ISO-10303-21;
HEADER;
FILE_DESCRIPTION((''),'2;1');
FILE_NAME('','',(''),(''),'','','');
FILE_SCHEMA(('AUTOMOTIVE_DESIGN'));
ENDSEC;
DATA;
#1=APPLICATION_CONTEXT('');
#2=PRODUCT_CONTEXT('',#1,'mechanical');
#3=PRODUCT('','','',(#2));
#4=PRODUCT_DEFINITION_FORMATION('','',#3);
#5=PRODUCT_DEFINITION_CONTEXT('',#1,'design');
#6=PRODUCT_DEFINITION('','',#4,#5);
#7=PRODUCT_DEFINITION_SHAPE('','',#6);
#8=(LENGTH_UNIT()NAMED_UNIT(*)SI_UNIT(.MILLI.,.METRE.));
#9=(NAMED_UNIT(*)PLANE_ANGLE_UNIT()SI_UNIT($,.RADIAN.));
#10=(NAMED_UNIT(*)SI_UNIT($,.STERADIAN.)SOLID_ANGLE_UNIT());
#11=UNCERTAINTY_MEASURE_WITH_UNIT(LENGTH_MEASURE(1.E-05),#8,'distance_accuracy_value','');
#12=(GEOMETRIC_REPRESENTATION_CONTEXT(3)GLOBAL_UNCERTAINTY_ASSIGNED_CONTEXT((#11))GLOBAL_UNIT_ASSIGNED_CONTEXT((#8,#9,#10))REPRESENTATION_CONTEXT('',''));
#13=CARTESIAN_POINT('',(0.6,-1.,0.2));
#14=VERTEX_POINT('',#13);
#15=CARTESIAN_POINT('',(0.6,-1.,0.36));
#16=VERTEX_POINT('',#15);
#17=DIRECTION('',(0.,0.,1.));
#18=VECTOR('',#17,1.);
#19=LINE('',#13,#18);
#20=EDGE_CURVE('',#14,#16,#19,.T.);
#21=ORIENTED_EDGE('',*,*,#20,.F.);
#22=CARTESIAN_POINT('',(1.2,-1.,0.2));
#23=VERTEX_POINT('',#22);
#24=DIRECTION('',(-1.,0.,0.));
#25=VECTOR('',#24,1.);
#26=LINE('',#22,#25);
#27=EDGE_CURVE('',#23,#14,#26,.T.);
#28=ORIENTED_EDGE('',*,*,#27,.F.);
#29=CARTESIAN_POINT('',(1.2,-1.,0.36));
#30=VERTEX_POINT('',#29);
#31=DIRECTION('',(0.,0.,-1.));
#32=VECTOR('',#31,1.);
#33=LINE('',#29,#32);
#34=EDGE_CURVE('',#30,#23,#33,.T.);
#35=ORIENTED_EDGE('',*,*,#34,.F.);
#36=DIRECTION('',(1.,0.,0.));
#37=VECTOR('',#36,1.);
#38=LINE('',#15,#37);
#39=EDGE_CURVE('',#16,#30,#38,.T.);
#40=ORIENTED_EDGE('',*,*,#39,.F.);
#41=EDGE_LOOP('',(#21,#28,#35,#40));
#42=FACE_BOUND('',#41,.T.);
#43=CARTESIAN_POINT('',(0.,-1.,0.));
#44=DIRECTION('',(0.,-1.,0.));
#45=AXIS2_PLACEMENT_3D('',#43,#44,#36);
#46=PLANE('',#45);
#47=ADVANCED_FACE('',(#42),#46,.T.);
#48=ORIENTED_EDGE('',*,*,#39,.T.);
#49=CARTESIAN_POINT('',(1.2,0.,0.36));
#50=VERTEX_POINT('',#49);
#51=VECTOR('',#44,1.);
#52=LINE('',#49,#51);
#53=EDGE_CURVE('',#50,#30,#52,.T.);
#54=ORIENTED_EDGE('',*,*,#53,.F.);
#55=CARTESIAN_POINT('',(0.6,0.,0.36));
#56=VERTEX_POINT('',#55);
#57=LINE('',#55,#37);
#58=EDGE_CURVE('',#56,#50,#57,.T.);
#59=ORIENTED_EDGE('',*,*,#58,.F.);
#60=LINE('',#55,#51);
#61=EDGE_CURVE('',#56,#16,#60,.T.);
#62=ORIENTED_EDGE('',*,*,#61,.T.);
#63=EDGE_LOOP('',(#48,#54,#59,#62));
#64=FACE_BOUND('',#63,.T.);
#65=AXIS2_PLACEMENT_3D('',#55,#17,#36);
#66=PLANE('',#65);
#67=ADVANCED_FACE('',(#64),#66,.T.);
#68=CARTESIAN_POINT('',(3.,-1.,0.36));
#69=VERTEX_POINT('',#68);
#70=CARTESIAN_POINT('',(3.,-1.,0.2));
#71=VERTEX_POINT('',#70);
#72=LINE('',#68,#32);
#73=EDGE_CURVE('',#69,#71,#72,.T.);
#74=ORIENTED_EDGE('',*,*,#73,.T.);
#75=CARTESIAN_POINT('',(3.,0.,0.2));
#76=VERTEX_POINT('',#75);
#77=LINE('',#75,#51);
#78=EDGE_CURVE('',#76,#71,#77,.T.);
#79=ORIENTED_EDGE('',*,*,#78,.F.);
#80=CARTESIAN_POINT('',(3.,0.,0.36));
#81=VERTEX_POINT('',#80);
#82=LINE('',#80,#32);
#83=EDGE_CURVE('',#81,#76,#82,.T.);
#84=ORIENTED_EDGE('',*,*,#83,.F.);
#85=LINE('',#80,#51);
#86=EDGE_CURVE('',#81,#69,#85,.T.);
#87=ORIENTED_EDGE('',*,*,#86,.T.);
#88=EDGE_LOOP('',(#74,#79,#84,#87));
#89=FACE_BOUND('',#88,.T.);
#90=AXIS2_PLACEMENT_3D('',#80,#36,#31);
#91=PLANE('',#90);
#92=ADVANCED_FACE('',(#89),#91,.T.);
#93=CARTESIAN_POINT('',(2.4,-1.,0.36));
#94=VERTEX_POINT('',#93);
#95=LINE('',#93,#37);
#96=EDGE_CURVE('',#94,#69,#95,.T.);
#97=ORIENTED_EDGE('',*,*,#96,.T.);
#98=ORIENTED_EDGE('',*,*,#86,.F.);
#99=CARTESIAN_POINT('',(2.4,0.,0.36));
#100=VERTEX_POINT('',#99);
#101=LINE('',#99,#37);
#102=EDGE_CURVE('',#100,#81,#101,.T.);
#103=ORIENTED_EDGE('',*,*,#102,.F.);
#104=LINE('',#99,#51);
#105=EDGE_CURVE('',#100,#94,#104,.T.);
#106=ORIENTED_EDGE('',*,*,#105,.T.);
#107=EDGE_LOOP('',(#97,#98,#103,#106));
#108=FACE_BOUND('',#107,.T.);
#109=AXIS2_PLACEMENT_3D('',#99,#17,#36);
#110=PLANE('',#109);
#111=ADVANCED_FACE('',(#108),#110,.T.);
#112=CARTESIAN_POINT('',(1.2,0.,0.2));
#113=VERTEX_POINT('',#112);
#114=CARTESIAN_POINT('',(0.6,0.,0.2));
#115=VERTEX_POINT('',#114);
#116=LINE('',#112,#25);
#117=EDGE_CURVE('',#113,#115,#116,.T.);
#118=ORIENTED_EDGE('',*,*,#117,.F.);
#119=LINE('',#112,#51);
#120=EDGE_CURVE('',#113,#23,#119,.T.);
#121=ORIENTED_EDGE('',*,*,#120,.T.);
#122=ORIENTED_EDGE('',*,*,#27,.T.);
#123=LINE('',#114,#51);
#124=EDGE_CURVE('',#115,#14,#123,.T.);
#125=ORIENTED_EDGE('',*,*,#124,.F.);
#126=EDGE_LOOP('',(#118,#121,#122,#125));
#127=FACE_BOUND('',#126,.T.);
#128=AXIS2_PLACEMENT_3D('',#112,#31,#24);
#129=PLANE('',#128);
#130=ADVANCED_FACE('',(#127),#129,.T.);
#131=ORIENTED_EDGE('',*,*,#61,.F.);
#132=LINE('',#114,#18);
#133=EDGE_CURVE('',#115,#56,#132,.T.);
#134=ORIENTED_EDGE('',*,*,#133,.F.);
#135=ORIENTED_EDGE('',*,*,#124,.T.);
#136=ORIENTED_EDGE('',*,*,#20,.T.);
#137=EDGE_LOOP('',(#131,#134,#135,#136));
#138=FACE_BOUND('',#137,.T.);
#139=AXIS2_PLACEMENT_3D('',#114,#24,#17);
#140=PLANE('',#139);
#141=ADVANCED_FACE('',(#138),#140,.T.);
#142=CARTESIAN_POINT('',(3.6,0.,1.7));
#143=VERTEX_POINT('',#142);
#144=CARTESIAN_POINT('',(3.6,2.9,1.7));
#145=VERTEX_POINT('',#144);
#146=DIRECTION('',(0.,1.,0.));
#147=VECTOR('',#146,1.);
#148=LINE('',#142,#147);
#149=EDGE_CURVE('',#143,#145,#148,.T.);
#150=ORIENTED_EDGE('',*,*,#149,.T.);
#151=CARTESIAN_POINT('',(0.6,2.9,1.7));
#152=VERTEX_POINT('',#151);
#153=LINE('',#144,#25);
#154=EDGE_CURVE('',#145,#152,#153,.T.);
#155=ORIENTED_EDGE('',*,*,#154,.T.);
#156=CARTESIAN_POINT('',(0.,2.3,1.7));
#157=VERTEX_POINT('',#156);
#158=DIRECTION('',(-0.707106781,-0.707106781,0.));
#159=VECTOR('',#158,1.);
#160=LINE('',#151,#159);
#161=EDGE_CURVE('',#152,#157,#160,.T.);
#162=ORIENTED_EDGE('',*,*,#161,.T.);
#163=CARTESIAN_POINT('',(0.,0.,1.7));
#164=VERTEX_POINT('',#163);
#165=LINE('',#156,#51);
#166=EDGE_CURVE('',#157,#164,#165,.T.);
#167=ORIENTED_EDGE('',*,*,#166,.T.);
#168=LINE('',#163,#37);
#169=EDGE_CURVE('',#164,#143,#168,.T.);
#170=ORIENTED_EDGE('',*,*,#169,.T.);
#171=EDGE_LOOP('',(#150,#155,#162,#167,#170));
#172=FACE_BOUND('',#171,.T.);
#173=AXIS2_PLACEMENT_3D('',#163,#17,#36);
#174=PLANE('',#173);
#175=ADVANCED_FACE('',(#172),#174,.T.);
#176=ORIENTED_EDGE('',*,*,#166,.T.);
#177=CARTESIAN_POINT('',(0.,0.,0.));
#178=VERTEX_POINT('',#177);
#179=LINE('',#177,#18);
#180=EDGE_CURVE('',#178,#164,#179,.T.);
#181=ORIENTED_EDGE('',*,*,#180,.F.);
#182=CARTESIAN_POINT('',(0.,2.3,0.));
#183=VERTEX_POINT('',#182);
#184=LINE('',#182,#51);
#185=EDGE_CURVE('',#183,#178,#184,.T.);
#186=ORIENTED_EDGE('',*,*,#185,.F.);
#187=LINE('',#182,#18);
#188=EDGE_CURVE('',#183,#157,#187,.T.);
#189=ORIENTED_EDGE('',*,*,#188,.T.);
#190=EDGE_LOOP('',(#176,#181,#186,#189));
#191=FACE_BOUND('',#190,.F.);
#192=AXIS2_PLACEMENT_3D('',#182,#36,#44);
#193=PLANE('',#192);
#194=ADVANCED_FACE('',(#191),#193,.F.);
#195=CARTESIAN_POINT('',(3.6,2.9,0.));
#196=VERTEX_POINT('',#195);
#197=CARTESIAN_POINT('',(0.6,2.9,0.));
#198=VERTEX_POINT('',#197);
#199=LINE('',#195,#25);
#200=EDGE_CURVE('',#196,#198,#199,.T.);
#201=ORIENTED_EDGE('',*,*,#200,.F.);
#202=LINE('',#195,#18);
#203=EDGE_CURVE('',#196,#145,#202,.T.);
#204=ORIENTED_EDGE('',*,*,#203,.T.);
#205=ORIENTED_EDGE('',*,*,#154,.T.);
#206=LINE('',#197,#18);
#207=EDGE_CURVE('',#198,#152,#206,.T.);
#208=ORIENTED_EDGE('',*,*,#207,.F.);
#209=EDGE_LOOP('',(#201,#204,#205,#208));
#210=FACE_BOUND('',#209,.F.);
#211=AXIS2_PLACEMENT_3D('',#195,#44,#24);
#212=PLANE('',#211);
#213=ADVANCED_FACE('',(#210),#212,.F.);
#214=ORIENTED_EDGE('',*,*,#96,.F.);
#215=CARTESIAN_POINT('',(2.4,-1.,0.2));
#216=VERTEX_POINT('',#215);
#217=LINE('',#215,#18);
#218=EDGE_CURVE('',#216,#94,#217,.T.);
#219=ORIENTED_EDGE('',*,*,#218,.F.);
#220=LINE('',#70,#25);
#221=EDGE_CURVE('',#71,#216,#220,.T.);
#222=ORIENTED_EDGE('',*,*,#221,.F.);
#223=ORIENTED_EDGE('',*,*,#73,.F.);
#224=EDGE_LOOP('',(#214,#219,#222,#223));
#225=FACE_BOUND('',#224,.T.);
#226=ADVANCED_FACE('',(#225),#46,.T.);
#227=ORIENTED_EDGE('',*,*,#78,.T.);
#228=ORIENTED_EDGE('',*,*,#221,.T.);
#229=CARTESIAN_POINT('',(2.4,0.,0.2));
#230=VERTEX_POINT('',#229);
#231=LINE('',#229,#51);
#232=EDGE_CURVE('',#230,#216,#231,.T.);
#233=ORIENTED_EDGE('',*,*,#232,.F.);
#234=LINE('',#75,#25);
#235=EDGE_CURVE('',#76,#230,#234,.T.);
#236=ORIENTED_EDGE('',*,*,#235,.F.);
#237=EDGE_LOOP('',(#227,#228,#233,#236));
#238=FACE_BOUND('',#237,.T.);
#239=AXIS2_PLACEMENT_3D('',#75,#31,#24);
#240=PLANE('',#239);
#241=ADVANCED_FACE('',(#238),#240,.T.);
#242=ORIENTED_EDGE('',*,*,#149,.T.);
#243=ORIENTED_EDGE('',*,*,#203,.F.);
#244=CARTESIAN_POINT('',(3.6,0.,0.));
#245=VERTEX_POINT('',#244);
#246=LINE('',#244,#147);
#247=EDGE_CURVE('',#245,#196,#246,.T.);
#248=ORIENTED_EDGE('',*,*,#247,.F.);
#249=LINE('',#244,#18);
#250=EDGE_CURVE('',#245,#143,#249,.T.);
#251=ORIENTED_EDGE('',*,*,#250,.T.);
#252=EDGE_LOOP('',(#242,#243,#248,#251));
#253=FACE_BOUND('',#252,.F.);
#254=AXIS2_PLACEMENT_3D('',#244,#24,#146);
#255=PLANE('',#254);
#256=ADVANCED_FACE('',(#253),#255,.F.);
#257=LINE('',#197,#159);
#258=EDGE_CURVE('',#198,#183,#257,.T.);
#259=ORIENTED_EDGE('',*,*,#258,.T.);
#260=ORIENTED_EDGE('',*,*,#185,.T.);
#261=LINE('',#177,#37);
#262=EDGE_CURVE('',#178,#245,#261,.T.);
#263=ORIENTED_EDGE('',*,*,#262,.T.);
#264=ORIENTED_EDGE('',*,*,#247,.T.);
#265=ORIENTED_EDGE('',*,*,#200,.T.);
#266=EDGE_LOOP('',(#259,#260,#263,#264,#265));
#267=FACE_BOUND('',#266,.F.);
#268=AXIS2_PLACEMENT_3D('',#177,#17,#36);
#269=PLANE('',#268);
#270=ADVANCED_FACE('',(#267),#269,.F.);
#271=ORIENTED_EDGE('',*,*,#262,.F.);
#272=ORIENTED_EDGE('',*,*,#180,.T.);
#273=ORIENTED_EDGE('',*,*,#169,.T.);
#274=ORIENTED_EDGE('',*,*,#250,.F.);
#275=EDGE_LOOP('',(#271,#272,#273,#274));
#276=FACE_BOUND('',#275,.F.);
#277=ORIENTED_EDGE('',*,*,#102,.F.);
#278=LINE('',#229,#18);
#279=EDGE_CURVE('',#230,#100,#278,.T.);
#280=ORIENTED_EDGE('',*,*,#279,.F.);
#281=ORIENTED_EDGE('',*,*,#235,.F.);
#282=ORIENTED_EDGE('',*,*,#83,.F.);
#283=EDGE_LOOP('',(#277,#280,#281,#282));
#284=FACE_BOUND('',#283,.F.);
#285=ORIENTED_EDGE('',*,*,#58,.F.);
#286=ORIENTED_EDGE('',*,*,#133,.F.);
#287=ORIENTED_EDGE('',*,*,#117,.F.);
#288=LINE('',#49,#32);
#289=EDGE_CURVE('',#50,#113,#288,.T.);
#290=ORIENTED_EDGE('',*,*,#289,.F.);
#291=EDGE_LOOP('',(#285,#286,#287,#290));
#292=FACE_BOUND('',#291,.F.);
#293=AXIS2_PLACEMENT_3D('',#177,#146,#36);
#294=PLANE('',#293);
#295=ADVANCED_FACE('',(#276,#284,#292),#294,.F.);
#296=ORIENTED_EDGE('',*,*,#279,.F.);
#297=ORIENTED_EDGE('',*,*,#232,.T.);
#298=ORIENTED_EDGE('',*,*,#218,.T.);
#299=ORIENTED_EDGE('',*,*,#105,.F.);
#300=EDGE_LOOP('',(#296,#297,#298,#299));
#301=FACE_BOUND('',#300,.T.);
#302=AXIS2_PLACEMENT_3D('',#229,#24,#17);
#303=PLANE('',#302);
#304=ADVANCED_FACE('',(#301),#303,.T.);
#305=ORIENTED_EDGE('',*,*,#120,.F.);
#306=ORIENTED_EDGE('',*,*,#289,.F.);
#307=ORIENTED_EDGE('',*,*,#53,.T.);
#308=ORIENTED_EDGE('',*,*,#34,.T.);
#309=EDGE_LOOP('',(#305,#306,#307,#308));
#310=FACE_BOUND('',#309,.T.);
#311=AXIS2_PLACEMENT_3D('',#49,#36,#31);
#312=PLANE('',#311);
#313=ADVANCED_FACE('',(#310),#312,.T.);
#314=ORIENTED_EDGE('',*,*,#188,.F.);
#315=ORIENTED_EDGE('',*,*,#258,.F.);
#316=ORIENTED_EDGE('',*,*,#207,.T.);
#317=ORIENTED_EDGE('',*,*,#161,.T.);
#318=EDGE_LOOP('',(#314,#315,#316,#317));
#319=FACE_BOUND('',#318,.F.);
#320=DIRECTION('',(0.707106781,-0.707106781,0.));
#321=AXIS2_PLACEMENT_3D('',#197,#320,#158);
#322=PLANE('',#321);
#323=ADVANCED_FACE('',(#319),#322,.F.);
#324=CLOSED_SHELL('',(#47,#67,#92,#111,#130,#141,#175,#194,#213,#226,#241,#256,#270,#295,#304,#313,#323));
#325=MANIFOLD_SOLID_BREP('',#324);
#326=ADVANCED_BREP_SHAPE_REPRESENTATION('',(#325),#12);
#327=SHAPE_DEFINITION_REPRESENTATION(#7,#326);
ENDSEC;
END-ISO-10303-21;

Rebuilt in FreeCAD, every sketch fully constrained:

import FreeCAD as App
import Part
import Sketcher

V = App.Vector
Q = App.Units.Quantity

doc = App.newDocument("Part")
body = doc.addObject("PartDesign::Body", "Body")

# Sketch on XY plane
sketch1 = body.newObject("Sketcher::SketchObject", "Sketch")
sketch1.AttachmentSupport = (doc.getObject("XY_Plane"), [""])
sketch1.MapMode = "FlatFace"
sketch1.addGeometry([
    Part.LineSegment(V(0, 2.3, 0), V(0, 0, 0)),  # 0
    Part.LineSegment(V(0, 0, 0), V(3.6, 0, 0)),  # 1
    Part.LineSegment(V(3.6, 0, 0), V(3.6, 2.9, 0)),  # 2
    Part.LineSegment(V(3.6, 2.9, 0), V(0.6, 2.9, 0)),  # 3
    Part.LineSegment(V(0.6, 2.9, 0), V(0, 2.3, 0)),  # 4
], False)
sketch1.addConstraint([
    Sketcher.Constraint("Coincident", 0, 2, 1, 1),
    Sketcher.Constraint("Coincident", 1, 2, 2, 1),
    Sketcher.Constraint("Coincident", 2, 2, 3, 1),
    Sketcher.Constraint("Coincident", 3, 2, 4, 1),
    Sketcher.Constraint("Coincident", 4, 2, 0, 1),
    Sketcher.Constraint("Vertical", 0),
    Sketcher.Constraint("Horizontal", 1),
    Sketcher.Constraint("Vertical", 2),
    Sketcher.Constraint("Horizontal", 3),
    Sketcher.Constraint("Coincident", 0, 2, -1, 1),
    Sketcher.Constraint("DistanceX", 3, 2, 3, 1, 3.0),
    Sketcher.Constraint("Angle", 4, Q("-135 deg")),
    Sketcher.Constraint("DistanceX", 1, 1, 1, 2, 3.6),
    Sketcher.Constraint("DistanceY", 2, 1, 2, 2, 2.9),
])
pad1 = body.newObject("PartDesign::Pad", "Pad")
pad1.Profile = sketch1
pad1.Length = 1.7

# Sketch on XZ plane
sketch2 = body.newObject("Sketcher::SketchObject", "Sketch001")
sketch2.AttachmentSupport = (doc.getObject("XZ_Plane"), [""])
sketch2.MapMode = "FlatFace"
sketch2.addGeometry([
    Part.LineSegment(V(1.2, 0.36, 0), V(0.6, 0.36, 0)),  # 0
    Part.LineSegment(V(0.6, 0.36, 0), V(0.6, 0.2, 0)),  # 1
    Part.LineSegment(V(0.6, 0.2, 0), V(1.2, 0.2, 0)),  # 2
    Part.LineSegment(V(1.2, 0.2, 0), V(1.2, 0.36, 0)),  # 3
    Part.LineSegment(V(3, 0.36, 0), V(2.4, 0.36, 0)),  # 4
    Part.LineSegment(V(2.4, 0.36, 0), V(2.4, 0.2, 0)),  # 5
    Part.LineSegment(V(2.4, 0.2, 0), V(3, 0.2, 0)),  # 6
    Part.LineSegment(V(3, 0.2, 0), V(3, 0.36, 0)),  # 7
], False)
sketch2.addConstraint([
    Sketcher.Constraint("Coincident", 0, 2, 1, 1),
    Sketcher.Constraint("Coincident", 1, 2, 2, 1),
    Sketcher.Constraint("Coincident", 2, 2, 3, 1),
    Sketcher.Constraint("Coincident", 3, 2, 0, 1),
    Sketcher.Constraint("Coincident", 4, 2, 5, 1),
    Sketcher.Constraint("Coincident", 5, 2, 6, 1),
    Sketcher.Constraint("Coincident", 6, 2, 7, 1),
    Sketcher.Constraint("Coincident", 7, 2, 4, 1),
    Sketcher.Constraint("Horizontal", 0),
    Sketcher.Constraint("Vertical", 1),
    Sketcher.Constraint("Horizontal", 2),
    Sketcher.Constraint("Vertical", 3),
    Sketcher.Constraint("Horizontal", 4),
    Sketcher.Constraint("Vertical", 5),
    Sketcher.Constraint("Horizontal", 6),
    Sketcher.Constraint("Vertical", 7),
    Sketcher.Constraint("Horizontal", 3, 2, 4, 2),
    Sketcher.Constraint("Horizontal", 2, 2, 5, 2),
    Sketcher.Constraint("Equal", 2, 4),
    Sketcher.Constraint("DistanceX", 0, 2, 0, 1, 0.6),
    Sketcher.Constraint("DistanceY", 1, 2, 1, 1, 0.16),
    Sketcher.Constraint("DistanceX", -1, 1, 0, 2, 0.6),
    Sketcher.Constraint("DistanceY", -1, 1, 1, 2, 0.2),
    Sketcher.Constraint("DistanceX", -1, 1, 6, 2, 3.0),
])
pad2 = body.newObject("PartDesign::Pad", "Pad001")
pad2.Profile = sketch2
pad2.Length = 1

doc.recompute()
